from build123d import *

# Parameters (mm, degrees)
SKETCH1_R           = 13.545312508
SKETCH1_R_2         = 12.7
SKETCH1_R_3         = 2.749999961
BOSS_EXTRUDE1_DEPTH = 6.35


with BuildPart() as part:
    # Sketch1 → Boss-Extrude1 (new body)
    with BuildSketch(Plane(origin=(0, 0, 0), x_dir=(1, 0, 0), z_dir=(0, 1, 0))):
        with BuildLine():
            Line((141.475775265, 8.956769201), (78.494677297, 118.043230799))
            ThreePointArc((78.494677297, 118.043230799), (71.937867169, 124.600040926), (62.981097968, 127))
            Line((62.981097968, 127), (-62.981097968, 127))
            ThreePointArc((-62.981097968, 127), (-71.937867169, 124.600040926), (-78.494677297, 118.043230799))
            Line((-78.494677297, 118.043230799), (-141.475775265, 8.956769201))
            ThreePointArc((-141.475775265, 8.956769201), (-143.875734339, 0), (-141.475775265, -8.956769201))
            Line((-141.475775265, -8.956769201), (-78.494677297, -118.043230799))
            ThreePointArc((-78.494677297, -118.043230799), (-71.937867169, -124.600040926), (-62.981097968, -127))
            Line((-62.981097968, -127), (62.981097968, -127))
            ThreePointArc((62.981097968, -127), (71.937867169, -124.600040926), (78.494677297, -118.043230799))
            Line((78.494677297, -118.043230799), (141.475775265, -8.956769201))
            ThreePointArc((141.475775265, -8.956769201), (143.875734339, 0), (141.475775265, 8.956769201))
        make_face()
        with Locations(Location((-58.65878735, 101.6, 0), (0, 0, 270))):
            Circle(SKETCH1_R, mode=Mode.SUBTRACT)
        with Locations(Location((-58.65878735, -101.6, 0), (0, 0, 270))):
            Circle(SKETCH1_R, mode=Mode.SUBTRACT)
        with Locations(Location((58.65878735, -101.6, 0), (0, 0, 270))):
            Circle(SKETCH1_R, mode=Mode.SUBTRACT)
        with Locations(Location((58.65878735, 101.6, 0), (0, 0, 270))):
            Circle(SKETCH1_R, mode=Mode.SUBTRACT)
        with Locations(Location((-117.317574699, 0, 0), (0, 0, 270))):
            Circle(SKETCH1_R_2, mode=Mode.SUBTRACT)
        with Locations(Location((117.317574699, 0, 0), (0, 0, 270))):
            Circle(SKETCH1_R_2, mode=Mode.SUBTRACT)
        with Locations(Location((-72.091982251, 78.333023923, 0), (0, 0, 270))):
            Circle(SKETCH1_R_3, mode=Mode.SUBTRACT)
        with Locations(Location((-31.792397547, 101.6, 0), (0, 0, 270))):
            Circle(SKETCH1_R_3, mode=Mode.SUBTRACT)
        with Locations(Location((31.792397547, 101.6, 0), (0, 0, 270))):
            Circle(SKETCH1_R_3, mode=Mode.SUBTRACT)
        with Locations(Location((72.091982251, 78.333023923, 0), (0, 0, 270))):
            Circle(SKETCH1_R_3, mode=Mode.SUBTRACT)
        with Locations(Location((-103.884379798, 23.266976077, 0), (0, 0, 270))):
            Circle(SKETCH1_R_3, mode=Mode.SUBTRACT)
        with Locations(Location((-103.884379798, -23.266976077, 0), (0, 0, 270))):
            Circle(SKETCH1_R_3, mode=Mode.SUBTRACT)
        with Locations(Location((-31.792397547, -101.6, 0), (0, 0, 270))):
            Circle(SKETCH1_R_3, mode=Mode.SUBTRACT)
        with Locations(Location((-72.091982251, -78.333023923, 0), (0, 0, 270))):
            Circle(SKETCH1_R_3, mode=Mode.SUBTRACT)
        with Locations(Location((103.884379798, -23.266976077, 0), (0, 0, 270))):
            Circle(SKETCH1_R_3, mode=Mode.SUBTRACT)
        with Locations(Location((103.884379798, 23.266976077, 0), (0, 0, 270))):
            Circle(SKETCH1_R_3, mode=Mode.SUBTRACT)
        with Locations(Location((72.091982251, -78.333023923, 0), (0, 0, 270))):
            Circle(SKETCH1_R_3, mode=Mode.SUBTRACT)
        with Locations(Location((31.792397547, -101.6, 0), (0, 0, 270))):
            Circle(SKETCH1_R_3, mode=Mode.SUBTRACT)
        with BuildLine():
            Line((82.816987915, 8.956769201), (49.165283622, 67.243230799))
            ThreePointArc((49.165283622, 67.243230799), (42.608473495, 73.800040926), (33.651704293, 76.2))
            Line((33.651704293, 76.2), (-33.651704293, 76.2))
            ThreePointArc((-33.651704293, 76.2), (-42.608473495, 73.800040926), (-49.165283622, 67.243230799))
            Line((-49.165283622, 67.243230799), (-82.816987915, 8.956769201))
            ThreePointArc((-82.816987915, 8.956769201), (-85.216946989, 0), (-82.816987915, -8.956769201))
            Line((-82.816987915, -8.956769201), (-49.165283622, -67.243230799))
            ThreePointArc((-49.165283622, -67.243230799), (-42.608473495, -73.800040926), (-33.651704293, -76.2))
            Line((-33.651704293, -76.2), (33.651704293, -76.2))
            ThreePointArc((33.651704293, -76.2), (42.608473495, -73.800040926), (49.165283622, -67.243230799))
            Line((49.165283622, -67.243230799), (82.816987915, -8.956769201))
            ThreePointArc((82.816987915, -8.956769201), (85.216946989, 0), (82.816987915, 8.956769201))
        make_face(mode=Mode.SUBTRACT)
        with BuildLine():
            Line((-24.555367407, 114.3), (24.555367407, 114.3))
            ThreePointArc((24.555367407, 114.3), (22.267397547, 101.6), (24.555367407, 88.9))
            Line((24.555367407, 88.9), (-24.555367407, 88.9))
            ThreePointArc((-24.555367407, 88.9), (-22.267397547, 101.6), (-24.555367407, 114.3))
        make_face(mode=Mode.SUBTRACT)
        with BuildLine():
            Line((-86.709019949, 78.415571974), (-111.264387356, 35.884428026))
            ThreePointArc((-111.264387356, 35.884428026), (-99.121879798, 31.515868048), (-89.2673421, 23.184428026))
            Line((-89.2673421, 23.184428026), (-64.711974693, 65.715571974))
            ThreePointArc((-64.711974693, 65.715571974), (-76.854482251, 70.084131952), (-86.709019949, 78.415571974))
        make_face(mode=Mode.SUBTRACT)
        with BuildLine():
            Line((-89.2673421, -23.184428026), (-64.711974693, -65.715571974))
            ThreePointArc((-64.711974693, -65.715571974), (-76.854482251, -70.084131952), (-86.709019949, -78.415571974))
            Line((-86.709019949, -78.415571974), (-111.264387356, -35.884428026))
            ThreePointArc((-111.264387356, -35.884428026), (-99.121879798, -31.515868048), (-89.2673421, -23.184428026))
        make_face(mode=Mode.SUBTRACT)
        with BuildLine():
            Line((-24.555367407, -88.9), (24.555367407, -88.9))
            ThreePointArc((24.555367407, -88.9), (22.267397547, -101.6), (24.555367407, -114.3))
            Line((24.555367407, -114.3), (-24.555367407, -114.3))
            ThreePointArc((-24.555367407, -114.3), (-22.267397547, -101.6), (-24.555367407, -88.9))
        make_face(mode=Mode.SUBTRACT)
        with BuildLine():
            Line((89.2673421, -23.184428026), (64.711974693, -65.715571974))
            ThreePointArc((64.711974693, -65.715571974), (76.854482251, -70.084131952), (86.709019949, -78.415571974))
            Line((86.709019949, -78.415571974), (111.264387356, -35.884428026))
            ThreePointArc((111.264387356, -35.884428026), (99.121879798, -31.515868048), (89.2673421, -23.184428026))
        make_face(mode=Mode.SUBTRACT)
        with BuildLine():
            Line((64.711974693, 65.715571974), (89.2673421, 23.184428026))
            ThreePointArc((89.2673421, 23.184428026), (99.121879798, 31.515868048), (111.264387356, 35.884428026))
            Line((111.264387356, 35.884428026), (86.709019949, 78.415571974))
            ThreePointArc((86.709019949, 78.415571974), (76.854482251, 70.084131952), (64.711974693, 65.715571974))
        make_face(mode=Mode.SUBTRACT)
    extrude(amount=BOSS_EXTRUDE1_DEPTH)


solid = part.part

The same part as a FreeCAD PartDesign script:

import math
import FreeCAD as App
import Part
import Sketcher
from FreeCAD import Vector
Q = App.Units.Quantity

doc = App.newDocument("Part")
body = doc.addObject("PartDesign::Body", "Body")

# Sketch on XZ plane
sketch1 = doc.addObject("Sketcher::SketchObject", "Sketch")
body.addObject(sketch1)
sketch1.AttachmentSupport = (doc.XZ_Plane, [""])
sketch1.MapMode = "FlatFace"
sketch1.addGeometry([
    Part.LineSegment(Vector(141.5, -9, 0), Vector(78.5, -118, 0)),  # 0
    Part.ArcOfCircle(Part.Circle(Vector(63, -109.1, 0), Vector(0, 0, 1), 17.9), math.radians(-90), math.radians(-30)),  # 1
    Part.LineSegment(Vector(63, -127, 0), Vector(-63, -127, 0)),  # 2
    Part.ArcOfCircle(Part.Circle(Vector(-63, -109.1, 0), Vector(0, 0, 1), 17.9), math.radians(-150), math.radians(-90)),  # 3
    Part.LineSegment(Vector(-78.5, -118, 0), Vector(-141.5, -9, 0)),  # 4
    Part.ArcOfCircle(Part.Circle(Vector(-126, 0, 0), Vector(0, 0, 1), 17.9), math.radians(150), math.radians(210)),  # 5
    Part.LineSegment(Vector(-141.5, 9, 0), Vector(-78.5, 118, 0)),  # 6
    Part.ArcOfCircle(Part.Circle(Vector(-63, 109.1, 0), Vector(0, 0, 1), 17.9), math.radians(90), math.radians(150)),  # 7
    Part.LineSegment(Vector(-63, 127, 0), Vector(63, 127, 0)),  # 8
    Part.ArcOfCircle(Part.Circle(Vector(63, 109.1, 0), Vector(0, 0, 1), 17.9), math.radians(30), math.radians(90)),  # 9
    Part.LineSegment(Vector(78.5, 118, 0), Vector(141.5, 9, 0)),  # 10
    Part.ArcOfCircle(Part.Circle(Vector(126, 0, 0), Vector(0, 0, 1), 17.9), math.radians(-30), math.radians(30)),  # 11
    Part.Circle(Vector(-72.1, 78.3, 0), Vector(0, 0, 1), 2.7),  # 12
    Part.Circle(Vector(-58.7, 101.6, 0), Vector(0, 0, 1), 13.5),  # 13
    Part.Circle(Vector(-31.8, 101.6, 0), Vector(0, 0, 1), 2.7),  # 14
    Part.ArcOfCircle(Part.Circle(Vector(-117.3, 0, 0), Vector(0, 0, 1), 36.4), math.radians(40), math.radians(80)),  # 15
    Part.LineSegment(Vector(-89.3, 23.2, 0), Vector(-64.7, 65.7, 0)),  # 16
    Part.ArcOfCircle(Part.Circle(Vector(-58.7, 101.6, 0), Vector(0, 0, 1), 36.4), math.radians(-140), math.radians(-100)),  # 17
    Part.LineSegment(Vector(-86.7, 78.4, 0), Vector(-111.3, 35.9, 0)),  # 18
    Part.Circle(Vector(-103.9, 23.3, 0), Vector(0, 0, 1), 2.7),  # 19
    Part.ArcOfCircle(Part.Circle(Vector(-58.7, 101.6, 0), Vector(0, 0, 1), 36.4), math.radians(-20), math.radians(20)),  # 20
    Part.LineSegment(Vector(-24.6, 88.9, 0), Vector(24.6, 88.9, 0)),  # 21
    Part.ArcOfCircle(Part.Circle(Vector(58.7, 101.6, 0), Vector(0, 0, 1), 36.4), math.radians(160), math.radians(200)),  # 22
    Part.LineSegment(Vector(24.6, 114.3, 0), Vector(-24.6, 114.3, 0)),  # 23
    Part.Circle(Vector(31.8, 101.6, 0), Vector(0, 0, 1), 2.7),  # 24
    Part.Circle(Vector(58.7, 101.6, 0), Vector(0, 0, 1), 13.5),  # 25
    Part.Circle(Vector(72.1, 78.3, 0), Vector(0, 0, 1), 2.7),  # 26
    Part.LineSegment(Vector(64.7, 65.7, 0), Vector(89.3, 23.2, 0)),  # 27
    Part.ArcOfCircle(Part.Circle(Vector(117.3, 0, 0), Vector(0, 0, 1), 36.4), math.radians(100), math.radians(140)),  # 28
    Part.LineSegment(Vector(111.3, 35.9, 0), Vector(86.7, 78.4, 0)),  # 29
    Part.ArcOfCircle(Part.Circle(Vector(58.7, 101.6, 0), Vector(0, 0, 1), 36.4), math.radians(-80), math.radians(-40)),  # 30
    Part.Circle(Vector(103.9, 23.3, 0), Vector(0, 0, 1), 2.7),  # 31
    Part.Circle(Vector(-117.3, 0, 0), Vector(0, 0, 1), 12.7),  # 32
    Part.Circle(Vector(-103.9, -23.3, 0), Vector(0, 0, 1), 2.7),  # 33
    Part.LineSegment(Vector(-111.3, -35.9, 0), Vector(-86.7, -78.4, 0)),  # 34
    Part.ArcOfCircle(Part.Circle(Vector(-58.7, -101.6, 0), Vector(0, 0, 1), 36.4), math.radians(100), math.radians(140)),  # 35
    Part.LineSegment(Vector(-64.7, -65.7, 0), Vector(-89.3, -23.2, 0)),  # 36
    Part.ArcOfCircle(Part.Circle(Vector(-117.3, 0, 0), Vector(0, 0, 1), 36.4), math.radians(-80), math.radians(-40)),  # 37
    Part.Circle(Vector(-72.1, -78.3, 0), Vector(0, 0, 1), 2.7),  # 38
    Part.Circle(Vector(-58.7, -101.6, 0), Vector(0, 0, 1), 13.5),  # 39
    Part.Circle(Vector(-31.8, -101.6, 0), Vector(0, 0, 1), 2.7),  # 40
    Part.LineSegment(Vector(49.2, -67.2, 0), Vector(82.8, -9, 0)),  # 41
    Part.ArcOfCircle(Part.Circle(Vector(67.3, 0, 0), Vector(0, 0, 1), 17.9), math.radians(-30), math.radians(30)),  # 42
    Part.LineSegment(Vector(82.8, 9, 0), Vector(49.2, 67.2, 0)),  # 43
    Part.ArcOfCircle(Part.Circle(Vector(33.7, 58.3, 0), Vector(0, 0, 1), 17.9), math.radians(30), math.radians(90)),  # 44
    Part.LineSegment(Vector(33.7, 76.2, 0), Vector(-33.7, 76.2, 0)),  # 45
    Part.ArcOfCircle(Part.Circle(Vector(-33.7, 58.3, 0), Vector(0, 0, 1), 17.9), math.radians(90), math.radians(150)),  # 46
    Part.LineSegment(Vector(-49.2, 67.2, 0), Vector(-82.8, 9, 0)),  # 47
    Part.ArcOfCircle(Part.Circle(Vector(-67.3, 0, 0), Vector(0, 0, 1), 17.9), math.radians(150), math.radians(210)),  # 48
    Part.LineSegment(Vector(-82.8, -9, 0), Vector(-49.2, -67.2, 0)),  # 49
    Part.ArcOfCircle(Part.Circle(Vector(-33.7, -58.3, 0), Vector(0, 0, 1), 17.9), math.radians(-150), math.radians(-90)),  # 50
    Part.LineSegment(Vector(-33.7, -76.2, 0), Vector(33.7, -76.2, 0)),  # 51
    Part.ArcOfCircle(Part.Circle(Vector(33.7, -58.3, 0), Vector(0, 0, 1), 17.9), math.radians(-90), math.radians(-30)),  # 52
    Part.Circle(Vector(117.3, 0, 0), Vector(0, 0, 1), 12.7),  # 53
    Part.Circle(Vector(103.9, -23.3, 0), Vector(0, 0, 1), 2.7),  # 54
    Part.LineSegment(Vector(89.3, -23.2, 0), Vector(64.7, -65.7, 0)),  # 55
    Part.ArcOfCircle(Part.Circle(Vector(58.7, -101.6, 0), Vector(0, 0, 1), 36.4), math.radians(40), math.radians(80)),  # 56
    Part.LineSegment(Vector(86.7, -78.4, 0), Vector(111.3, -35.9, 0)),  # 57
    Part.ArcOfCircle(Part.Circle(Vector(117.3, 0, 0), Vector(0, 0, 1), 36.4), math.radians(-140), math.radians(-100)),  # 58
    Part.ArcOfCircle(Part.Circle(Vector(-58.7, -101.6, 0), Vector(0, 0, 1), 36.4), math.radians(-20), math.radians(20)),  # 59
    Part.LineSegment(Vector(-24.6, -114.3, 0), Vector(24.6, -114.3, 0)),  # 60
    Part.ArcOfCircle(Part.Circle(Vector(58.7, -101.6, 0), Vector(0, 0, 1), 36.4), math.radians(160), math.radians(200)),  # 61
    Part.LineSegment(Vector(24.6, -88.9, 0), Vector(-24.6, -88.9, 0)),  # 62
    Part.Circle(Vector(31.8, -101.6, 0), Vector(0, 0, 1), 2.7),  # 63
    Part.Circle(Vector(58.7, -101.6, 0), Vector(0, 0, 1), 13.5),  # 64
    Part.Circle(Vector(72.1, -78.3, 0), Vector(0, 0, 1), 2.7),  # 65
], False)
sketch1.addConstraint([
    Sketcher.Constraint("Tangent", 0, 2, 1, 2),
    Sketcher.Constraint("Tangent", 1, 1, 2, 1),
    Sketcher.Constraint("Tangent", 2, 2, 3, 2),
    Sketcher.Constraint("Tangent", 3, 1, 4, 1),
    Sketcher.Constraint("Tangent", 4, 2, 5, 2),
    Sketcher.Constraint("Tangent", 5, 1, 6, 1),
    Sketcher.Constraint("Tangent", 6, 2, 7, 2),
    Sketcher.Constraint("Tangent", 7, 1, 8, 1),
    Sketcher.Constraint("Tangent", 8, 2, 9, 2),
    Sketcher.Constraint("Tangent", 9, 1, 10, 1),
    Sketcher.Constraint("Tangent", 10, 2, 11, 2),
    Sketcher.Constraint("Tangent", 11, 1, 0, 1),
    Sketcher.Constraint("Coincident", 15, 1, 16, 1),
    Sketcher.Constraint("Coincident", 16, 2, 17, 2),
    Sketcher.Constraint("Coincident", 17, 1, 18, 1),
    Sketcher.Constraint("Coincident", 18, 2, 15, 2),
    Sketcher.Constraint("Coincident", 20, 1, 21, 1),
    Sketcher.Constraint("Coincident", 21, 2, 22, 2),
    Sketcher.Constraint("Coincident", 22, 1, 23, 1),
    Sketcher.Constraint("Coincident", 23, 2, 20, 2),
    Sketcher.Constraint("Coincident", 27, 2, 28, 2),
    Sketcher.Constraint("Coincident", 28, 1, 29, 1),
    Sketcher.Constraint("Coincident", 29, 2, 30, 2),
    Sketcher.Constraint("Coincident", 30, 1, 27, 1),
    Sketcher.Constraint("Coincident", 34, 2, 35, 2),
    Sketcher.Constraint("Coincident", 35, 1, 36, 1),
    Sketcher.Constraint("Coincident", 36, 2, 37, 2),
    Sketcher.Constraint("Coincident", 37, 1, 34, 1),
    Sketcher.Constraint("Tangent", 41, 2, 42, 1),
    Sketcher.Constraint("Tangent", 42, 2, 43, 1),
    Sketcher.Constraint("Tangent", 43, 2, 44, 1),
    Sketcher.Constraint("Tangent", 44, 2, 45, 1),
    Sketcher.Constraint("Tangent", 45, 2, 46, 1),
    Sketcher.Constraint("Tangent", 46, 2, 47, 1),
    Sketcher.Constraint("Tangent", 47, 2, 48, 1),
    Sketcher.Constraint("Tangent", 48, 2, 49, 1),
    Sketcher.Constraint("Tangent", 49, 2, 50, 1),
    Sketcher.Constraint("Tangent", 50, 2, 51, 1),
    Sketcher.Constraint("Tangent", 51, 2, 52, 1),
    Sketcher.Constraint("Tangent", 52, 2, 41, 1),
    Sketcher.Constraint("Coincident", 55, 2, 56, 2),
    Sketcher.Constraint("Coincident", 56, 1, 57, 1),
    Sketcher.Constraint("Coincident", 57, 2, 58, 2),
    Sketcher.Constraint("Coincident", 58, 1, 55, 1),
    Sketcher.Constraint("Coincident", 59, 1, 60, 1),
    Sketcher.Constraint("Coincident", 60, 2, 61, 2),
    Sketcher.Constraint("Coincident", 61, 1, 62, 1),
    Sketcher.Constraint("Coincident", 62, 2, 59, 2),
    Sketcher.Constraint("Horizontal", 2),
    Sketcher.Constraint("Horizontal", 8),
    Sketcher.Constraint("Horizontal", 21),
    Sketcher.Constraint("Horizontal", 23),
    Sketcher.Constraint("Horizontal", 45),
    Sketcher.Constraint("Horizontal", 51),
    Sketcher.Constraint("Horizontal", 60),
    Sketcher.Constraint("Horizontal", 62),
    Sketcher.Constraint("Coincident", 17, 3, 13, 3),
    Sketcher.Constraint("Coincident", 20, 3, 13, 3),
    Sketcher.Constraint("Coincident", 25, 3, 22, 3),
    Sketcher.Constraint("Coincident", 30, 3, 22, 3),
    Sketcher.Constraint("Coincident", 32, 3, 15, 3),
    Sketcher.Constraint("Coincident", 37, 3, 15, 3),
    Sketcher.Constraint("Coincident", 39, 3, 35, 3),
    Sketcher.Constraint("Coincident", 53, 3, 28, 3),
    Sketcher.Constraint("Coincident", 58, 3, 28, 3),
    Sketcher.Constraint("Coincident", 59, 3, 35, 3),
    Sketcher.Constraint("Coincident", 61, 3, 56, 3),
    Sketcher.Constraint("Coincident", 64, 3, 56, 3),
    Sketcher.Constraint("Equal", 1, 3),
    Sketcher.Constraint("Equal", 3, 5),
    Sketcher.Constraint("Equal", 5, 7),
    Sketcher.Constraint("Equal", 7, 9),
    Sketcher.Constraint("Equal", 9, 11),
    Sketcher.Constraint("Equal", 12, 14),
    Sketcher.Constraint("Equal", 15, 17),
    Sketcher.Constraint("Equal", 14, 19),
    Sketcher.Constraint("Equal", 17, 20),
    Sketcher.Constraint("Equal", 20, 22),
    Sketcher.Constraint("Equal", 19, 24),
    Sketcher.Constraint("Equal", 13, 25),
    Sketcher.Constraint("Equal", 24, 26),
    Sketcher.Constraint("Equal", 22, 28),
    Sketcher.Constraint("Equal", 28, 30),
    Sketcher.Constraint("Equal", 26, 31),
    Sketcher.Constraint("Equal", 31, 33),
    Sketcher.Constraint("Equal", 30, 35),
    Sketcher.Constraint("Equal", 35, 37),
    Sketcher.Constraint("Equal", 33, 38),
    Sketcher.Constraint("Equal", 25, 39),
    Sketcher.Constraint("Equal", 38, 40),
    Sketcher.Constraint("Equal", 11, 42),
    Sketcher.Constraint("Equal", 42, 44),
    Sketcher.Constraint("Equal", 44, 46),
    Sketcher.Constraint("Equal", 46, 48),
    Sketcher.Constraint("Equal", 48, 50),
    Sketcher.Constraint("Equal", 50, 52),
    Sketcher.Constraint("Equal", 32, 53),
    Sketcher.Constraint("Equal", 40, 54),
    Sketcher.Constraint("Equal", 37, 56),
    Sketcher.Constraint("Equal", 56, 58),
    Sketcher.Constraint("Equal", 58, 59),
    Sketcher.Constraint("Equal", 59, 61),
    Sketcher.Constraint("Equal", 54, 63),
    Sketcher.Constraint("Equal", 39, 64),
    Sketcher.Constraint("Equal", 63, 65),
    Sketcher.Constraint("Symmetric", 1, 3, 7, 3, -1, 1),
    Sketcher.Constraint("Symmetric", 5, 3, 11, 3, -1, 1),
    Sketcher.Constraint("Symmetric", 15, 3, 28, 3, -1, 1),
    Sketcher.Constraint("Symmetric", 31, 3, 33, 3, -1, 1),
    Sketcher.Constraint("Symmetric", 22, 3, 35, 3, -1, 1),
    Sketcher.Constraint("Symmetric", 26, 3, 38, 3, -1, 1),
    Sketcher.Constraint("Symmetric", 24, 3, 40, 3, -1, 1),
    Sketcher.Constraint("Symmetric", 42, 3, 48, 3, -1, 1),
    Sketcher.Constraint("Symmetric", 44, 3, 50, 3, -1, 1),
    Sketcher.Constraint("Symmetric", 19, 3, 54, 3, -1, 1),
    Sketcher.Constraint("Symmetric", 13, 3, 56, 3, -1, 1),
    Sketcher.Constraint("Symmetric", 14, 3, 63, 3, -1, 1),
    Sketcher.Constraint("Symmetric", 12, 3, 65, 3, -1, 1),
    Sketcher.Constraint("Symmetric", 13, 3, 22, 3, -2),
    Sketcher.Constraint("Symmetric", 14, 3, 24, 3, -2),
    Sketcher.Constraint("Symmetric", 12, 3, 26, 3, -2),
    Sketcher.Constraint("Symmetric", 19, 3, 31, 3, -2),
    Sketcher.Constraint("Symmetric", 0, 2, 3, 1, -2),
    Sketcher.Constraint("Symmetric", 15, 1, 27, 2, -2),
    Sketcher.Constraint("Symmetric", 43, 2, 46, 2, -2),
    Sketcher.Constraint("Parallel", 4, 10),
    Sketcher.Constraint("Parallel", 6, 16),
    Sketcher.Constraint("Parallel", 16, 18),
    Sketcher.Constraint("Parallel", 10, 27),
    Sketcher.Constraint("Parallel", 27, 29),
    Sketcher.Constraint("Parallel", 29, 34),
    Sketcher.Constraint("Parallel", 34, 36),
    Sketcher.Constraint("Parallel", 18, 41),
    Sketcher.Constraint("Parallel", 36, 43),
    Sketcher.Constraint("Parallel", 47, 55),
    Sketcher.Constraint("Parallel", 55, 57),
    Sketcher.Constraint("Horizontal", 13, 3, 14, 3),
    Sketcher.Constraint("Horizontal", 18, 2, 28, 1),
    Sketcher.Constraint("Horizontal", 35, 1, 55, 2),
    Sketcher.Constraint("Horizontal", 34, 2, 56, 1),
    Sketcher.Constraint("Vertical", 21, 2, 22, 1),
    Sketcher.Constraint("Vertical", 17, 1, 34, 2),
    Sketcher.Constraint("Vertical", 16, 2, 35, 1),
    Sketcher.Constraint("Vertical", 23, 2, 59, 1),
    Sketcher.Constraint("Vertical", 60, 2, 61, 1),
    Sketcher.Constraint("Equal", 16, 18),
    Sketcher.Constraint("Diameter", 32, Q("1 in")),
    Sketcher.Constraint("DistanceY", -1, 1, 13, 3, Q("4 in")),
    Sketcher.Constraint("DistanceY", 1, 1, -1, 1, Q("5 in")),
    Sketcher.Constraint("DistanceY", -1, 1, 44, 2, Q("3 in")),
    Sketcher.Constraint("Angle", 0, Q("-120 deg")),
    Sketcher.Constraint("DistanceY", -1, 1, 20, 1, Q("3.5 in")),
    Sketcher.Constraint("Diameter", 12, 5.5),
    Sketcher.Constraint("Radius", 1, 17.913538),
    Sketcher.Constraint("Radius", 15, 36.39139),
    Sketcher.Constraint("Diameter", 13, 27.090625),
    Sketcher.Constraint("DistanceX", 45, 2, 45, 1, 67.303409),
    Sketcher.Constraint("DistanceX", 2, 2, 2, 1, 125.962196),
    Sketcher.Constraint("DistanceX", 21, 1, 21, 2, 49.110735),
    Sketcher.Constraint("DistanceX", 19, 3, -1, 1, 103.88438),
    Sketcher.Constraint("DistanceY", -1, 1, 15, 1, 23.184428),
    Sketcher.Constraint("DistanceY", -1, 1, 16, 2, 65.715572),
    Sketcher.Constraint("DistanceX", 12, 3, -1, 1, 72.091982),
    Sketcher.Constraint("DistanceY", -1, 1, 12, 3, 78.333024),
    Sketcher.Constraint("DistanceX", 14, 3, -1, 1, 31.792398),
    Sketcher.Constraint("DistanceY", -1, 1, 19, 3, 23.266976),
])
pad1 = doc.addObject("PartDesign::Pad", "Pad")
body.addObject(pad1)
pad1.Profile = sketch1
pad1.Length = Q("0.25 in")
pad1.Reversed = True

doc.recompute()
